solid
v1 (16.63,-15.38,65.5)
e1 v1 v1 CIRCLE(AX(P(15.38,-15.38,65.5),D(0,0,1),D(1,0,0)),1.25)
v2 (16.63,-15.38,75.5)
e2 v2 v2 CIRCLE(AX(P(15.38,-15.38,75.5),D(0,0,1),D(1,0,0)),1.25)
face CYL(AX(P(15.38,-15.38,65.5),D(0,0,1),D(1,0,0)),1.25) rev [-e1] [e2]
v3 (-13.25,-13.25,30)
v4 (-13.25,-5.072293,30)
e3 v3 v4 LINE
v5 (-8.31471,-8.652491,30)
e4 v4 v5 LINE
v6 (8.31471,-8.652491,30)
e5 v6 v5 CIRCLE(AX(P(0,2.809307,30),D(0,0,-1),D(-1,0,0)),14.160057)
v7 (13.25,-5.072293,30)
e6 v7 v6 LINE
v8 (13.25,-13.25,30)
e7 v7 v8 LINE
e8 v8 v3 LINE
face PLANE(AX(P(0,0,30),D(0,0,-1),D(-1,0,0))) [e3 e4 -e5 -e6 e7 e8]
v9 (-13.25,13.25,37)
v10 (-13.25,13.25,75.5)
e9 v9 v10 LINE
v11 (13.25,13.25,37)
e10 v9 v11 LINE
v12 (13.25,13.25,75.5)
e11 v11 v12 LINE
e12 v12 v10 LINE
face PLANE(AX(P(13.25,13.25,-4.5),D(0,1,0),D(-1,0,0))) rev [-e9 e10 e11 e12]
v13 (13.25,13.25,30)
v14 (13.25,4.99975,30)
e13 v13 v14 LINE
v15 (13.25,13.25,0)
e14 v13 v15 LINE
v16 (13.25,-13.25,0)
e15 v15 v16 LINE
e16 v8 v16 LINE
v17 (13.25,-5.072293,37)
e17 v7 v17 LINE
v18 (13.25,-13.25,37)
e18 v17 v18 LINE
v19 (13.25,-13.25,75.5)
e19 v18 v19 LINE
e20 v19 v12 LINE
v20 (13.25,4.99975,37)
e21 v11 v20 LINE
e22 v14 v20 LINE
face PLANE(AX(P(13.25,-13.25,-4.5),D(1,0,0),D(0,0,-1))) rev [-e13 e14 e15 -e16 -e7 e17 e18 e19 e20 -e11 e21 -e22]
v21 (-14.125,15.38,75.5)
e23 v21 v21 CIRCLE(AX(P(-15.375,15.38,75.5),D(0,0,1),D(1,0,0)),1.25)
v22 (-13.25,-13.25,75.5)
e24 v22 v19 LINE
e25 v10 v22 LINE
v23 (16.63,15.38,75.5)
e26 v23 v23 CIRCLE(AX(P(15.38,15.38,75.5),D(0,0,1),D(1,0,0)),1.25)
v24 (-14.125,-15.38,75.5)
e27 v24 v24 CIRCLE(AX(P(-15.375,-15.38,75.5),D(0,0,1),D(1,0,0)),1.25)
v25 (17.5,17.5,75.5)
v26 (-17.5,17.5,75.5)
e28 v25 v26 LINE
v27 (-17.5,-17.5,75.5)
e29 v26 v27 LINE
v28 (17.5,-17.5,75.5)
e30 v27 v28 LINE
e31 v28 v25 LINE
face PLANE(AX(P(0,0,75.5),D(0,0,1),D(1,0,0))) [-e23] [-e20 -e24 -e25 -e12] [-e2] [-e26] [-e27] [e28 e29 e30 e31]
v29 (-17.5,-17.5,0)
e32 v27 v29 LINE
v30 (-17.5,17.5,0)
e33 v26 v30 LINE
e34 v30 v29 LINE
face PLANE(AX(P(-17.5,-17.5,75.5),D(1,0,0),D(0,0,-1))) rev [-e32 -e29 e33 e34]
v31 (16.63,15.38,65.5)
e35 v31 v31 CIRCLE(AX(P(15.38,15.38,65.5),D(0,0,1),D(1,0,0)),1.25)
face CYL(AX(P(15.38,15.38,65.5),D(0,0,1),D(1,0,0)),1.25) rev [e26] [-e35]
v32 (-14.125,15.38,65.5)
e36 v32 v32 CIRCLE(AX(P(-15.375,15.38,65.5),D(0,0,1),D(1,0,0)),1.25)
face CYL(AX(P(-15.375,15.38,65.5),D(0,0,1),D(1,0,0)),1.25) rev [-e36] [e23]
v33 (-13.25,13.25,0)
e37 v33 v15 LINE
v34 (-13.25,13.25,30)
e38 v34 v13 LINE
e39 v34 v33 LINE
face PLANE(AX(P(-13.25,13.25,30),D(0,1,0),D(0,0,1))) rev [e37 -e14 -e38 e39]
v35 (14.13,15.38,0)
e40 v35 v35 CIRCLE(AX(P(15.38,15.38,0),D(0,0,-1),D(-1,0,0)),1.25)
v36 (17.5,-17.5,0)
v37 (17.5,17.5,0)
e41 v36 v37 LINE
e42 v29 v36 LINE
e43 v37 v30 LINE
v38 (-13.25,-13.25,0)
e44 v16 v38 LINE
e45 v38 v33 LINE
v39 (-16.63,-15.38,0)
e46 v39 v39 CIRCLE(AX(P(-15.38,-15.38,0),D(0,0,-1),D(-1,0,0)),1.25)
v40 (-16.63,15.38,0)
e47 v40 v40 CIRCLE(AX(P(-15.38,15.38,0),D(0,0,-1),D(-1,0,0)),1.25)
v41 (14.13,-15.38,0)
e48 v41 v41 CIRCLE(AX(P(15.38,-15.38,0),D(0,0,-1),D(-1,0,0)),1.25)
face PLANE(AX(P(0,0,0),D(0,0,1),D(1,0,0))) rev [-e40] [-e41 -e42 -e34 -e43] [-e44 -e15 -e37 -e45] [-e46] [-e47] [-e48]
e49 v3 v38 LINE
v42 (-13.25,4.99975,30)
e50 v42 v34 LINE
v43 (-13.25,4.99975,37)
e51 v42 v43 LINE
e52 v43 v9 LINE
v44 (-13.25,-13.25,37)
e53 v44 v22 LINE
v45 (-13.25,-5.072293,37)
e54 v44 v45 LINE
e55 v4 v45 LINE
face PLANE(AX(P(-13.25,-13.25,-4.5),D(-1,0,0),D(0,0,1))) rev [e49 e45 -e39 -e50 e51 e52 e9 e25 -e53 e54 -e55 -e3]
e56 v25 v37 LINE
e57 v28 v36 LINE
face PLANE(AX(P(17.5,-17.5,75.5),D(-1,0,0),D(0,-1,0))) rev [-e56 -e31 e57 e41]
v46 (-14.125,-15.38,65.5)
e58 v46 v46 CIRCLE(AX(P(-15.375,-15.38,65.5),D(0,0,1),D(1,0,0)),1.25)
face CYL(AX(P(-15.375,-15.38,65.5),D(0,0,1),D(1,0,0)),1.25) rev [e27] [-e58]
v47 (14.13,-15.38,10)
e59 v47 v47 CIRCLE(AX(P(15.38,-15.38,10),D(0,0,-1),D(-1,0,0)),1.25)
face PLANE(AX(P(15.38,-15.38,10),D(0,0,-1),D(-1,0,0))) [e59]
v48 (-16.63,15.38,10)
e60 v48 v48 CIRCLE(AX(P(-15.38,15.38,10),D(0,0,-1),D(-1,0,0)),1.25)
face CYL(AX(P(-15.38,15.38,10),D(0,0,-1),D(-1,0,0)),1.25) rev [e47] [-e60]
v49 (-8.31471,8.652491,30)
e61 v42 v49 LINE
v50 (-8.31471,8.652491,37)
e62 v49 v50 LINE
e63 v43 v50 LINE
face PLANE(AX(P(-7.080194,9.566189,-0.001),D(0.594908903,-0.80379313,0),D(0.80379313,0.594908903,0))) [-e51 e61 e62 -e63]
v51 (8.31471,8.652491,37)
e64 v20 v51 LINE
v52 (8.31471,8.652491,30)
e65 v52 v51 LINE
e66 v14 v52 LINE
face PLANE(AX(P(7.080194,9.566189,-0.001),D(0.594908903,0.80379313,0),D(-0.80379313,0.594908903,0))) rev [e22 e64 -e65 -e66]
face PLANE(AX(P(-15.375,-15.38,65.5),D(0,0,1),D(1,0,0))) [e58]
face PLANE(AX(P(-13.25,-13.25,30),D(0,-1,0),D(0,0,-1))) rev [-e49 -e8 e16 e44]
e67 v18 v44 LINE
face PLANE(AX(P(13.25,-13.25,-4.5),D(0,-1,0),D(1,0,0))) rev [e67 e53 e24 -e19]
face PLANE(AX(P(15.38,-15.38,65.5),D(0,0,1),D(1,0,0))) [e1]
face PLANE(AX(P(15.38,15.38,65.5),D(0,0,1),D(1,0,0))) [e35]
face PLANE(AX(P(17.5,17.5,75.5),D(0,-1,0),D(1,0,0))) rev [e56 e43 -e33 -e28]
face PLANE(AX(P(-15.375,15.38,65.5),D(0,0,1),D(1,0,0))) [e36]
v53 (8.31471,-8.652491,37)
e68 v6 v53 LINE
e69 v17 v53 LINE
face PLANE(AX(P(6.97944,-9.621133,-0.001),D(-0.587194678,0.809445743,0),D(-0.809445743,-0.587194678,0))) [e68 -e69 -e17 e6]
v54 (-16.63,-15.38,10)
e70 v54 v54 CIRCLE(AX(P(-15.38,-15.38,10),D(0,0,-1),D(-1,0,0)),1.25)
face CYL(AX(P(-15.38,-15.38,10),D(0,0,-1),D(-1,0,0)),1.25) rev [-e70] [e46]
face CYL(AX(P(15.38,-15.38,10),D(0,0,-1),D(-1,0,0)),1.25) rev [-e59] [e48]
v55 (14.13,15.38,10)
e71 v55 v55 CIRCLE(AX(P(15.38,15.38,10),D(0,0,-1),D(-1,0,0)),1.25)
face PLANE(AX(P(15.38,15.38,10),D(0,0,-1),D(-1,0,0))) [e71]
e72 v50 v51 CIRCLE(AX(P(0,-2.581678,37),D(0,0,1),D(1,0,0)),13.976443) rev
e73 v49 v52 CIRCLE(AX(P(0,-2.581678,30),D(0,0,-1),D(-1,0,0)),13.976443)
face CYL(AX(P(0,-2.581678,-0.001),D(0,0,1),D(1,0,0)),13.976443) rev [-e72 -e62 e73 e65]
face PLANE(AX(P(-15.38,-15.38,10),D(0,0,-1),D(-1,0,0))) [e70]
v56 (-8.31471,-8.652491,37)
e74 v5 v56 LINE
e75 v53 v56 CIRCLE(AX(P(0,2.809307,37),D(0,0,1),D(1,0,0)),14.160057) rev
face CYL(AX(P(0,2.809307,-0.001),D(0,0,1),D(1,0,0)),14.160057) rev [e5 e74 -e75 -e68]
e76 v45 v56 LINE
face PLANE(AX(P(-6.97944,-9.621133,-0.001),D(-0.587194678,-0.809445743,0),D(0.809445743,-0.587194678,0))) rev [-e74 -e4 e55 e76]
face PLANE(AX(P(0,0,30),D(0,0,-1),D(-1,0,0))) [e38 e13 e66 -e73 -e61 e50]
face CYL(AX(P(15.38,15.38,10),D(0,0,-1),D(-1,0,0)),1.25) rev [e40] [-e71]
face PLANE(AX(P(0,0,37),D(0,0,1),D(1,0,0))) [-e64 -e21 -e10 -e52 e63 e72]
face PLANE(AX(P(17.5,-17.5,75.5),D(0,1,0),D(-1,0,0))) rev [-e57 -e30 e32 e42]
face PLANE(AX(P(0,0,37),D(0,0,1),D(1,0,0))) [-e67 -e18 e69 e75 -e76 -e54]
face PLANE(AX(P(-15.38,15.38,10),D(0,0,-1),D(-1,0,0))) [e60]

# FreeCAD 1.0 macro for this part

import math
import FreeCAD as App
import Part
import Sketcher
from FreeCAD import Vector
Q = App.Units.Quantity


def add_polygon(sketch, points):
    """Adds a closed chain of lines whose ends are joined by coincident constraints."""
    first, n = sketch.GeometryCount, len(points)
    for a, b in zip(points, points[1:] + points[:1]):
        sketch.addGeometry(Part.LineSegment(App.Vector(*a, 0), App.Vector(*b, 0)), False)
    for i in range(n):
        sketch.addConstraint(Sketcher.Constraint("Coincident", first + i, 2, first + (i + 1) % n, 1))

doc = App.newDocument("Part")
body = doc.addObject("PartDesign::Body", "Body")

sketch1 = doc.addObject("Sketcher::SketchObject", "Sketch")
body.addObject(sketch1)
sketch1.AttachmentSupport = (doc.XY_Plane, [""])
sketch1.MapMode = "FlatFace"
add_polygon(sketch1, [(-18, 18), (-18, -18), (18, -18), (18, 18)])
sketch1.addConstraint(Sketcher.Constraint("Vertical", 0))
sketch1.addConstraint(Sketcher.Constraint("Horizontal", 1))
sketch1.addConstraint(Sketcher.Constraint("Vertical", 2))
sketch1.addConstraint(Sketcher.Constraint("Horizontal", 3))
sketch1.addConstraint(Sketcher.Constraint("Symmetric", 0, 2, 2, 2, -1, 1))
sketch1.addConstraint(Sketcher.Constraint("Equal", 3, 0))
sketch1.addConstraint(Sketcher.Constraint("DistanceX", 1, 1, 1, 2, Q("35 mm")))
pad1 = doc.addObject("PartDesign::Pad", "Pad")
body.addObject(pad1)
pad1.Profile = sketch1
pad1.Length = 75.5

sketch2 = doc.addObject("Sketcher::SketchObject", "Sketch001")
body.addObject(sketch2)
sketch2.AttachmentSupport = (doc.XY_Plane, [""])
sketch2.MapMode = "FlatFace"
sketch2.AttachmentOffset = App.Placement(Vector(0, 0, 75.5), App.Rotation())
add_polygon(sketch2, [(-13, 13), (-13, -13), (13, -13), (13, 13)])
sketch2.addConstraint(Sketcher.Constraint("Vertical", 0))
sketch2.addConstraint(Sketcher.Constraint("Horizontal", 1))
sketch2.addConstraint(Sketcher.Constraint("Vertical", 2))
sketch2.addConstraint(Sketcher.Constraint("Horizontal", 3))
sketch2.addConstraint(Sketcher.Constraint("Symmetric", 0, 2, 2, 2, -1, 1))
sketch2.addConstraint(Sketcher.Constraint("Equal", 3, 0))
sketch2.addConstraint(Sketcher.Constraint("DistanceX", 1, 1, 1, 2, Q("26.5 mm")))
pocket1 = doc.addObject("PartDesign::Pocket", "Pocket")
body.addObject(pocket1)
pocket1.Profile = sketch2
pocket1.Length = 80

sketch3 = doc.addObject("Sketcher::SketchObject", "Sketch002")
body.addObject(sketch3)
sketch3.AttachmentSupport = (doc.XY_Plane, [""])
sketch3.MapMode = "FlatFace"
sketch3.AttachmentOffset = App.Placement(Vector(0, 0, 75.5), App.Rotation())
sketch3.addGeometry(Part.Circle(Vector(-15.4, 15.4, 0), Vector(0, 0, 1), 1.2), False)
sketch3.addGeometry(Part.Circle(Vector(15.4, 15.4, 0), Vector(0, 0, 1), 1.2), False)
sketch3.addGeometry(Part.Circle(Vector(15.4, -15.4, 0), Vector(0, 0, 1), 1.2), False)
sketch3.addGeometry(Part.Circle(Vector(-15.4, -15.4, 0), Vector(0, 0, 1), 1.2), False)
sketch3.addConstraint(Sketcher.Constraint("Equal", 0, 1))
sketch3.addConstraint(Sketcher.Constraint("Equal", 1, 2))
sketch3.addConstraint(Sketcher.Constraint("Equal", 2, 3))
sketch3.addConstraint(Sketcher.Constraint("Symmetric", 1, 3, 2, 3, -1))
sketch3.addConstraint(Sketcher.Constraint("Symmetric", 0, 3, 3, 3, -1))
sketch3.addConstraint(Sketcher.Constraint("Horizontal", 0, 3, 1, 3))
sketch3.addConstraint(Sketcher.Constraint("Diameter", 0, Q("2.5 mm")))
sketch3.addConstraint(Sketcher.Constraint("DistanceY", -1, 1, 0, 3, Q("15.38 mm")))
sketch3.addConstraint(Sketcher.Constraint("DistanceX", -1, 1, 1, 3, Q("15.38 mm")))
sketch3.addConstraint(Sketcher.Constraint("DistanceX", 0, 3, -1, 1, Q("15.375 mm")))
pocket2 = doc.addObject("PartDesign::Pocket", "Pocket001")
body.addObject(pocket2)
pocket2.Profile = sketch3
pocket2.Length = 10

sketch4 = doc.addObject("Sketcher::SketchObject", "Sketch003")
body.addObject(sketch4)
sketch4.AttachmentSupport = (doc.XY_Plane, [""])
sketch4.MapMode = "FlatFace"
sketch4.AttachmentOffset = App.Placement(Vector(0, 0, 10), App.Rotation())
sketch4.addGeometry(Part.Circle(Vector(15.4, 15.4, 0), Vector(0, 0, 1), 1.2), False)
sketch4.addGeometry(Part.Circle(Vector(-15.4, 15.4, 0), Vector(0, 0, 1), 1.2), False)
sketch4.addGeometry(Part.Circle(Vector(-15.4, -15.4, 0), Vector(0, 0, 1), 1.2), False)
sketch4.addGeometry(Part.Circle(Vector(15.4, -15.4, 0), Vector(0, 0, 1), 1.2), False)
sketch4.addConstraint(Sketcher.Constraint("Equal", 0, 1))
sketch4.addConstraint(Sketcher.Constraint("Equal", 1, 2))
sketch4.addConstraint(Sketcher.Constraint("Equal", 2, 3))
sketch4.addConstraint(Sketcher.Constraint("Symmetric", 0, 3, 2, 3, -1, 1))
sketch4.addConstraint(Sketcher.Constraint("Symmetric", 1, 3, 3, 3, -1, 1))
sketch4.addConstraint(Sketcher.Constraint("Symmetric", 0, 3, 1, 3, -2))
sketch4.addConstraint(Sketcher.Constraint("Diameter", 0, Q("2.5 mm")))
sketch4.addConstraint(Sketcher.Constraint("DistanceX", -1, 1, 0, 3, Q("15.38 mm")))
sketch4.addConstraint(Sketcher.Constraint("DistanceY", -1, 1, 0, 3, Q("15.38 mm")))
pocket3 = doc.addObject("PartDesign::Pocket", "Pocket002")
body.addObject(pocket3)
pocket3.Profile = sketch4
pocket3.Length = 10

sketch5 = doc.addObject("Sketcher::SketchObject", "Sketch004")
body.addObject(sketch5)
sketch5.AttachmentSupport = (doc.XY_Plane, [""])
sketch5.MapMode = "FlatFace"
add_polygon(sketch5, [(13, 13), (13, -13), (-13, -13), (-13, 13)])
sketch5.addConstraint(Sketcher.Constraint("Vertical", 0))
sketch5.addConstraint(Sketcher.Constraint("Horizontal", 1))
sketch5.addConstraint(Sketcher.Constraint("Vertical", 2))
sketch5.addConstraint(Sketcher.Constraint("Horizontal", 3))
sketch5.addConstraint(Sketcher.Constraint("Symmetric", 0, 2, 2, 2, -1, 1))
sketch5.addConstraint(Sketcher.Constraint("Equal", 3, 0))
sketch5.addConstraint(Sketcher.Constraint("DistanceX", 1, 2, 1, 1, Q("26.5 mm")))
pad2 = doc.addObject("PartDesign::Pad", "Pad001")
body.addObject(pad2)
pad2.Profile = sketch5
pad2.Length = 37

sketch6 = doc.addObject("Sketcher::SketchObject", "Sketch005")
body.addObject(sketch6)
sketch6.AttachmentSupport = (doc.XY_Plane, [""])
sketch6.MapMode = "FlatFace"
add_polygon(sketch6, [(13, 13), (13, -13), (-13, -13), (-13, 13)])
sketch6.addConstraint(Sketcher.Constraint("Vertical", 0))
sketch6.addConstraint(Sketcher.Constraint("Horizontal", 1))
sketch6.addConstraint(Sketcher.Constraint("Vertical", 2))
sketch6.addConstraint(Sketcher.Constraint("Horizontal", 3))
sketch6.addConstraint(Sketcher.Constraint("Symmetric", 0, 2, 2, 2, -1, 1))
sketch6.addConstraint(Sketcher.Constraint("Equal", 3, 0))
sketch6.addConstraint(Sketcher.Constraint("DistanceX", 1, 2, 1, 1, Q("26.5 mm")))
pocket4 = doc.addObject("PartDesign::Pocket", "Pocket003")
body.addObject(pocket4)
pocket4.Profile = sketch6
pocket4.Length = 30
pocket4.Reversed = True

sketch7 = doc.addObject("Sketcher::SketchObject", "Sketch006")
body.addObject(sketch7)
sketch7.AttachmentSupport = (doc.XY_Plane, [""])
sketch7.MapMode = "FlatFace"
sketch7.AttachmentOffset = App.Placement(Vector(0, 0, 37), App.Rotation())
sketch7.addGeometry(Part.LineSegment(Vector(13, -5, 0), Vector(13, 0, 0)), False)
sketch7.addGeometry(Part.LineSegment(Vector(13, 0, 0), Vector(-13, 0, 0)), False)
sketch7.addGeometry(Part.LineSegment(Vector(-13, 0, 0), Vector(-13, -5, 0)), False)
sketch7.addGeometry(Part.LineSegment(Vector(-13, -5, 0), Vector(-8, -9, 0)), False)
sketch7.addGeometry(Part.ArcOfCircle(Part.Circle(Vector(0, 3, 0), Vector(0, 0, 1), 14), math.radians(-126), math.radians(-54)), False)
sketch7.addGeometry(Part.LineSegment(Vector(8, -9, 0), Vector(13, -5, 0)), False)
sketch7.addConstraint(Sketcher.Constraint("Coincident", 0, 2, 1, 1))
sketch7.addConstraint(Sketcher.Constraint("Coincident", 1, 2, 2, 1))
sketch7.addConstraint(Sketcher.Constraint("Coincident", 2, 2, 3, 1))
sketch7.addConstraint(Sketcher.Constraint("Tangent", 3, 2, 4, 1))
sketch7.addConstraint(Sketcher.Constraint("Tangent", 4, 2, 5, 1))
sketch7.addConstraint(Sketcher.Constraint("Coincident", 5, 2, 0, 1))
sketch7.addConstraint(Sketcher.Constraint("Vertical", 0))
sketch7.addConstraint(Sketcher.Constraint("Horizontal", 1))
sketch7.addConstraint(Sketcher.Constraint("Vertical", 2))
sketch7.addConstraint(Sketcher.Constraint("Symmetric", 0, 2, 1, 2, -1, 1))
sketch7.addConstraint(Sketcher.Constraint("Symmetric", 3, 2, 4, 2, -2))
sketch7.addConstraint(Sketcher.Constraint("DistanceX", 1, 2, 1, 1, Q("26.5 mm")))
sketch7.addConstraint(Sketcher.Constraint("Radius", 4, Q("14.160057 mm")))
sketch7.addConstraint(Sketcher.Constraint("DistanceY", 2, 2, 4, 3, Q("7.8816 mm")))
sketch7.addConstraint(Sketcher.Constraint("DistanceY", 0, 1, 0, 2, Q("5.072293 mm")))
pocket5 = doc.addObject("PartDesign::Pocket", "Pocket004")
body.addObject(pocket5)
pocket5.Profile = sketch7
pocket5.Type = "UpToFirst"

sketch8 = doc.addObject("Sketcher::SketchObject", "Sketch007")
body.addObject(sketch8)
sketch8.AttachmentSupport = (doc.XY_Plane, [""])
sketch8.MapMode = "FlatFace"
sketch8.AttachmentOffset = App.Placement(Vector(0, 0, 37), App.Rotation())
sketch8.addGeometry(Part.LineSegment(Vector(-13.2, 0, 0), Vector(13.2, 0, 0)), False)
sketch8.addGeometry(Part.LineSegment(Vector(13.2, 0, 0), Vector(13.2, 5, 0)), False)
sketch8.addGeometry(Part.LineSegment(Vector(13.2, 5, 0), Vector(8.3, 8.7, 0)), False)
sketch8.addGeometry(Part.ArcOfCircle(Part.Circle(Vector(0, -2.6, 0), Vector(0, 0, 1), 14), math.radians(53), math.radians(127)), False)
sketch8.addGeometry(Part.LineSegment(Vector(-8.3, 8.7, 0), Vector(-13.2, 5, 0)), False)
sketch8.addGeometry(Part.LineSegment(Vector(-13.2, 5, 0), Vector(-13.2, 0, 0)), False)
sketch8.addConstraint(Sketcher.Constraint("Coincident", 0, 2, 1, 1))
sketch8.addConstraint(Sketcher.Constraint("Coincident", 1, 2, 2, 1))
sketch8.addConstraint(Sketcher.Constraint("Tangent", 2, 2, 3, 1))
sketch8.addConstraint(Sketcher.Constraint("Tangent", 3, 2, 4, 1))
sketch8.addConstraint(Sketcher.Constraint("Coincident", 4, 2, 5, 1))
sketch8.addConstraint(Sketcher.Constraint("Coincident", 5, 2, 0, 1))
sketch8.addConstraint(Sketcher.Constraint("Horizontal", 0))
sketch8.addConstraint(Sketcher.Constraint("Vertical", 1))
sketch8.addConstraint(Sketcher.Constraint("Vertical", 5))
sketch8.addConstraint(Sketcher.Constraint("Symmetric", 0, 2, 5, 2, -1, 1))
sketch8.addConstraint(Sketcher.Constraint("Symmetric", 2, 2, 3, 2, -2))
sketch8.addConstraint(Sketcher.Constraint("DistanceX", 0, 1, 0, 2, Q("26.5 mm")))
sketch8.addConstraint(Sketcher.Constraint("Distance", 2, Q("6.14 mm")))
sketch8.addConstraint(Sketcher.Constraint("Radius", 3, Q("13.976443 mm")))
sketch8.addConstraint(Sketcher.Constraint("DistanceY", 1, 1, 1, 2, Q("4.99975 mm")))
pocket6 = doc.addObject("PartDesign::Pocket", "Pocket005")
body.addObject(pocket6)
pocket6.Profile = sketch8
pocket6.Type = "UpToFirst"

doc.recompute()
